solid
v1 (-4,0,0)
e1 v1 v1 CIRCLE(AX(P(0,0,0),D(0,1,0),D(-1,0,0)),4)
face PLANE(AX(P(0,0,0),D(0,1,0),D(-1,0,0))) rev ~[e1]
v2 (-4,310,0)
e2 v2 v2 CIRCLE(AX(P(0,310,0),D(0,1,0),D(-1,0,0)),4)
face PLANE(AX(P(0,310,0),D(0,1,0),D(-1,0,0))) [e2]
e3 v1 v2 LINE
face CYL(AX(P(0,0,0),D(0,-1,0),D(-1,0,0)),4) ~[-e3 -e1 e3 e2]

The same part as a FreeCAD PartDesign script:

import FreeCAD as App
import Part
import Sketcher
from FreeCAD import Vector
Q = App.Units.Quantity

doc = App.newDocument("Part")
body = doc.addObject("PartDesign::Body", "Body")

# Sketch on XZ plane
sketch1 = body.newObject("Sketcher::SketchObject", "Sketch")
sketch1.AttachmentSupport = (doc.getObject("XZ_Plane"), [""])
sketch1.MapMode = "FlatFace"
sketch1.addGeometry(Part.Circle(Vector(0, 0, 0), Vector(0, 0, 1), 4), False)
sketch1.addConstraint([
    Sketcher.Constraint("Coincident", 0, 3, -1, 1),
    Sketcher.Constraint("Diameter", 0, Q("8 mm")),
])
pad1 = body.newObject("PartDesign::Pad", "Pad")
pad1.Profile = sketch1
pad1.Length = 310
pad1.Reversed = True

doc.recompute()
